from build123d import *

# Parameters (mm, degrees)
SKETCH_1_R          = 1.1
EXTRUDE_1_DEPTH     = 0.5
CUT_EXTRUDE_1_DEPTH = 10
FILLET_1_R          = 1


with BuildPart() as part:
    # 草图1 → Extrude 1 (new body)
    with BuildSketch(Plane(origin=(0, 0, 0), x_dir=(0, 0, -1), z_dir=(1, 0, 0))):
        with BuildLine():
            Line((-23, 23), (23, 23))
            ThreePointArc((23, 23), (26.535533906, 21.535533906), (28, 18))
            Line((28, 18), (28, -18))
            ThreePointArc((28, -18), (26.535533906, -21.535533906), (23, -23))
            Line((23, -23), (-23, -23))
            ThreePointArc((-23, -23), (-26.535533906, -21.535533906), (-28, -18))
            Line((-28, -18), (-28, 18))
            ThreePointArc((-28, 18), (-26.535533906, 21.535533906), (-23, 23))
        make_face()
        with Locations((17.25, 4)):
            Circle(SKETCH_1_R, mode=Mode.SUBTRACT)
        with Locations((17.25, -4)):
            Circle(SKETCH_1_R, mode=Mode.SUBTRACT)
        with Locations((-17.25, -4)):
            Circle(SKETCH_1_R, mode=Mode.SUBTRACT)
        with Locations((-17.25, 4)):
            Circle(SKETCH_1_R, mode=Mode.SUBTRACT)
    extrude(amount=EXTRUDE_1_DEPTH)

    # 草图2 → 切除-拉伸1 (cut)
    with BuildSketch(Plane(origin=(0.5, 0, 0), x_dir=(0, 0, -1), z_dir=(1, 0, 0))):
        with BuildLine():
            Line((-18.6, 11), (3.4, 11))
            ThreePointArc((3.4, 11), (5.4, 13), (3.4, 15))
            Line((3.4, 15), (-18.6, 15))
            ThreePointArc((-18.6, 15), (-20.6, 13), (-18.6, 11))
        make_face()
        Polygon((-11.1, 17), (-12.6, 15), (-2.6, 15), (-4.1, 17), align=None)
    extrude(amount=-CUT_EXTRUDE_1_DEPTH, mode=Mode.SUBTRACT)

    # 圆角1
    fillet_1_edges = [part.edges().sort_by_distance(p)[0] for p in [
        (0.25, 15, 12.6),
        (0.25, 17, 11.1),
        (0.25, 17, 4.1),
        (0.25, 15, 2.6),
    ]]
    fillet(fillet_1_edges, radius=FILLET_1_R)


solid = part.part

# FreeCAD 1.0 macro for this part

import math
import FreeCAD as App
import Part
import Sketcher
from FreeCAD import Vector
Q = App.Units.Quantity


def edges_at(feature, points):
    """Names of the edges that pass closest to the given points."""
    edges = feature.Shape.Edges
    near = lambda p: min(range(len(edges)), key=lambda i: edges[i].distToShape(Part.Vertex(*p))[0])
    return sorted({f"Edge{near(p) + 1}" for p in points})

doc = App.newDocument("Part")
body = doc.addObject("PartDesign::Body", "Body")

sketch1 = body.newObject("Sketcher::SketchObject", "Sketch")
sketch1.AttachmentSupport = (doc.getObject("YZ_Plane"), [""])
sketch1.MapMode = "FlatFace"
sketch1.addGeometry([
    Part.LineSegment(Vector(23, -23, 0), Vector(23, 23, 0)),
    Part.ArcOfCircle(Part.Circle(Vector(18, 23, 0), Vector(0, 0, 1), 5), math.radians(0), math.radians(90)),
    Part.LineSegment(Vector(18, 28, 0), Vector(-18, 28, 0)),
    Part.ArcOfCircle(Part.Circle(Vector(-18, 23, 0), Vector(0, 0, 1), 5), math.radians(90), math.radians(180)),
    Part.LineSegment(Vector(-23, 23, 0), Vector(-23, -23, 0)),
    Part.ArcOfCircle(Part.Circle(Vector(-18, -23, 0), Vector(0, 0, 1), 5), math.radians(180), math.radians(270)),
    Part.LineSegment(Vector(-18, -28, 0), Vector(18, -28, 0)),
    Part.ArcOfCircle(Part.Circle(Vector(18, -23, 0), Vector(0, 0, 1), 5), math.radians(-90), math.radians(0)),
    Part.Circle(Vector(-4, -17.2, 0), Vector(0, 0, 1), 1.1),
    Part.Circle(Vector(-4, 17.2, 0), Vector(0, 0, 1), 1.1),
    Part.Circle(Vector(4, -17.2, 0), Vector(0, 0, 1), 1.1),
    Part.Circle(Vector(4, 17.2, 0), Vector(0, 0, 1), 1.1),
], False)
sketch1.addConstraint([
    Sketcher.Constraint("Tangent", 0, 2, 1, 1),
    Sketcher.Constraint("Tangent", 1, 2, 2, 1),
    Sketcher.Constraint("Tangent", 2, 2, 3, 1),
    Sketcher.Constraint("Tangent", 3, 2, 4, 1),
    Sketcher.Constraint("Tangent", 4, 2, 5, 1),
    Sketcher.Constraint("Tangent", 5, 2, 6, 1),
    Sketcher.Constraint("Tangent", 6, 2, 7, 1),
    Sketcher.Constraint("Tangent", 7, 2, 0, 1),
    Sketcher.Constraint("Vertical", 0),
    Sketcher.Constraint("Horizontal", 2),
    Sketcher.Constraint("Vertical", 4),
    Sketcher.Constraint("Horizontal", 6),
    Sketcher.Constraint("Equal", 1, 3),
    Sketcher.Constraint("Equal", 3, 5),
    Sketcher.Constraint("Equal", 5, 7),
    Sketcher.Constraint("Equal", 8, 9),
    Sketcher.Constraint("Equal", 9, 10),
    Sketcher.Constraint("Equal", 10, 11),
    Sketcher.Constraint("Symmetric", 1, 3, 5, 3, -1, 1),
    Sketcher.Constraint("Symmetric", 9, 3, 10, 3, -1, 1),
    Sketcher.Constraint("Symmetric", 8, 3, 11, 3, -1, 1),
    Sketcher.Constraint("Symmetric", 8, 3, 10, 3, -2),
    Sketcher.Constraint("Radius", 1, Q("5 mm")),
    Sketcher.Constraint("Diameter", 8, Q("2.2 mm")),
    Sketcher.Constraint("DistanceX", 2, 2, 2, 1, Q("36 mm")),
    Sketcher.Constraint("DistanceY", 0, 1, 0, 2, Q("46 mm")),
    Sketcher.Constraint("DistanceX", 8, 3, -1, 1, Q("4 mm")),
    Sketcher.Constraint("DistanceY", 8, 3, 9, 3, Q("34.5 mm")),
])
pad1 = body.newObject("PartDesign::Pad", "Pad")
pad1.Profile = sketch1
pad1.Length = 0.5

sketch2 = body.newObject("Sketcher::SketchObject", "Sketch001")
sketch2.AttachmentSupport = (doc.getObject("YZ_Plane"), [""])
sketch2.MapMode = "FlatFace"
sketch2.AttachmentOffset = App.Placement(Vector(0, 0, 0.5), App.Rotation())
sketch2.addGeometry([
    Part.LineSegment(Vector(11, 18.6, 0), Vector(11, -3.4, 0)),
    Part.ArcOfCircle(Part.Circle(Vector(13, -3.4, 0), Vector(0, 0, 1), 2), math.radians(180), math.radians(360)),
    Part.LineSegment(Vector(15, -3.4, 0), Vector(15, 2.6, 0)),
    Part.LineSegment(Vector(15, 2.6, 0), Vector(17, 4.1, 0)),
    Part.LineSegment(Vector(17, 4.1, 0), Vector(17, 11.1, 0)),
    Part.LineSegment(Vector(17, 11.1, 0), Vector(15, 12.6, 0)),
    Part.LineSegment(Vector(15, 12.6, 0), Vector(15, 18.6, 0)),
    Part.ArcOfCircle(Part.Circle(Vector(13, 18.6, 0), Vector(0, 0, 1), 2), math.radians(0), math.radians(180)),
], False)
sketch2.addConstraint([
    Sketcher.Constraint("Tangent", 0, 2, 1, 1),
    Sketcher.Constraint("Tangent", 1, 2, 2, 1),
    Sketcher.Constraint("Coincident", 2, 2, 3, 1),
    Sketcher.Constraint("Coincident", 3, 2, 4, 1),
    Sketcher.Constraint("Coincident", 4, 2, 5, 1),
    Sketcher.Constraint("Coincident", 5, 2, 6, 1),
    Sketcher.Constraint("Tangent", 6, 2, 7, 1),
    Sketcher.Constraint("Tangent", 7, 2, 0, 1),
    Sketcher.Constraint("Vertical", 0),
    Sketcher.Constraint("Vertical", 2),
    Sketcher.Constraint("Vertical", 4),
    Sketcher.Constraint("Vertical", 6),
    Sketcher.Constraint("Equal", 1, 7),
    Sketcher.Constraint("Equal", 2, 6),
    Sketcher.Constraint("Equal", 3, 5),
    Sketcher.Constraint("Radius", 1, Q("2 mm")),
    Sketcher.Constraint("DistanceY", 0, 2, 0, 1, Q("22 mm")),
    Sketcher.Constraint("DistanceY", 2, 1, 2, 2, Q("6 mm")),
    Sketcher.Constraint("DistanceY", 4, 1, 4, 2, Q("7 mm")),
    Sketcher.Constraint("DistanceX", -1, 1, 1, 3, Q("13 mm")),
    Sketcher.Constraint("DistanceX", -1, 1, 3, 2, Q("17 mm")),
    Sketcher.Constraint("DistanceY", 1, 3, -1, 1, Q("3.4 mm")),
])
pocket1 = body.newObject("PartDesign::Pocket", "Pocket")
pocket1.Profile = sketch2
pocket1.Length = 10
doc.recompute()

fillet = body.newObject("PartDesign::Fillet", "Fillet")
fillet.Base = (pocket1, edges_at(pocket1, [
    (0.25, 15, 12.6),
    (0.25, 17, 11.1),
    (0.25, 17, 4.1),
    (0.25, 15, 2.6),
]))
fillet.Radius = 1

doc.recompute()
